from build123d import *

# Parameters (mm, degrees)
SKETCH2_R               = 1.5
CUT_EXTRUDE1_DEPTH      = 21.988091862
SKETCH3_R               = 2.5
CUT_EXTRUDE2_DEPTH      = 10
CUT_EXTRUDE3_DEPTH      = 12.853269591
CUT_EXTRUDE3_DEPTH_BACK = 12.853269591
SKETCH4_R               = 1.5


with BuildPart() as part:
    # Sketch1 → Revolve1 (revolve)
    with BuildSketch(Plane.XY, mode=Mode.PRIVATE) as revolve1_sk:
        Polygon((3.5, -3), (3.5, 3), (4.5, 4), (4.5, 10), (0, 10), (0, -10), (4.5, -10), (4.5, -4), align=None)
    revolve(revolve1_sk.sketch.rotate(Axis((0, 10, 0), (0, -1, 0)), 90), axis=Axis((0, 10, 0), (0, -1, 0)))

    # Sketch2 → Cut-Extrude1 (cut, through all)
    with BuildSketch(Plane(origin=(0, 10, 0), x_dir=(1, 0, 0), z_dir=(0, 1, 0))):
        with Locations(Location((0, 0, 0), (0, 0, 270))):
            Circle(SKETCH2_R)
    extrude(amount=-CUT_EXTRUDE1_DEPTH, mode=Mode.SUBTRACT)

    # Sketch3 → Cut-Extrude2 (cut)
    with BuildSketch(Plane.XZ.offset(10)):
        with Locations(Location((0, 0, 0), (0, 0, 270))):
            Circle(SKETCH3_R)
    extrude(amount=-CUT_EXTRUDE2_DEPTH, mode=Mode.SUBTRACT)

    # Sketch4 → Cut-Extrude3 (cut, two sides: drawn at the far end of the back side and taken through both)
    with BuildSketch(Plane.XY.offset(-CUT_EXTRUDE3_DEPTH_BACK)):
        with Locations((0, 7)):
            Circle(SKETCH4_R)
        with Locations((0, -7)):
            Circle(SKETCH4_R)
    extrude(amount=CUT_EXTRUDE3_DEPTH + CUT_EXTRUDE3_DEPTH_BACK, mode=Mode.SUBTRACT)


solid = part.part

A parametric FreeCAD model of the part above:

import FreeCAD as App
import Part
import Sketcher
Q = App.Units.Quantity

doc = App.newDocument("Part")
body = doc.addObject("PartDesign::Body", "Body")

# Sketch on XY plane
sketch1 = body.newObject("Sketcher::SketchObject", "Sketch")
sketch1.AttachmentSupport = (doc.getObject("XY_Plane"), [""])
sketch1.MapMode = "FlatFace"
sketch1.addGeometry([
    Part.LineSegment(App.Vector(3.5, -3, 0), App.Vector(3.5, 3, 0)),  # 0
    Part.LineSegment(App.Vector(3.5, 3, 0), App.Vector(4.5, 4, 0)),  # 1
    Part.LineSegment(App.Vector(4.5, 4, 0), App.Vector(4.5, 10, 0)),  # 2
    Part.LineSegment(App.Vector(4.5, 10, 0), App.Vector(0, 10, 0)),  # 3
    Part.LineSegment(App.Vector(0, 10, 0), App.Vector(0, -10, 0)),  # 4
    Part.LineSegment(App.Vector(0, -10, 0), App.Vector(4.5, -10, 0)),  # 5
    Part.LineSegment(App.Vector(4.5, -10, 0), App.Vector(4.5, -4, 0)),  # 6
    Part.LineSegment(App.Vector(4.5, -4, 0), App.Vector(3.5, -3, 0)),  # 7
], False)
sketch1.addConstraint([
    Sketcher.Constraint("Coincident", 0, 2, 1, 1),
    Sketcher.Constraint("Coincident", 1, 2, 2, 1),
    Sketcher.Constraint("Coincident", 2, 2, 3, 1),
    Sketcher.Constraint("Coincident", 3, 2, 4, 1),
    Sketcher.Constraint("Coincident", 4, 2, 5, 1),
    Sketcher.Constraint("Coincident", 5, 2, 6, 1),
    Sketcher.Constraint("Coincident", 6, 2, 7, 1),
    Sketcher.Constraint("Coincident", 7, 2, 0, 1),
    Sketcher.Constraint("Vertical", 0),
    Sketcher.Constraint("Vertical", 2),
    Sketcher.Constraint("Horizontal", 3),
    Sketcher.Constraint("Vertical", 4),
    Sketcher.Constraint("Horizontal", 5),
    Sketcher.Constraint("Vertical", 6),
    Sketcher.Constraint("Symmetric", 3, 2, 4, 2, -1, 1),
    Sketcher.Constraint("Symmetric", 1, 2, 6, 2, -1),
    Sketcher.Constraint("Perpendicular", 1, 7),
    Sketcher.Constraint("Equal", 0, 2),
    Sketcher.Constraint("Equal", 1, 7),
    Sketcher.Constraint("DistanceY", 0, 1, 0, 2, Q("6 mm")),
    Sketcher.Constraint("DistanceY", 4, 2, 4, 1, Q("20 mm")),
    Sketcher.Constraint("DistanceX", 3, 2, 3, 1, Q("4.5 mm")),
])
revolution = body.newObject("PartDesign::Revolution", "Revolution")
revolution.Profile = sketch1
revolution.ReferenceAxis = (sketch1, ["V_Axis"])
revolution.Angle = 360

# Sketch on XZ plane
sketch2 = body.newObject("Sketcher::SketchObject", "Sketch001")
sketch2.AttachmentSupport = (doc.getObject("XZ_Plane"), [""])
sketch2.MapMode = "FlatFace"
sketch2.AttachmentOffset = App.Placement(App.Vector(0, 0, -10), App.Rotation())
sketch2.addGeometry(Part.Circle(App.Vector(0, 0, 0), App.Vector(0, 0, 1), 1.5), False)
sketch2.addConstraint([
    Sketcher.Constraint("Coincident", 0, 3, -1, 1),
    Sketcher.Constraint("Diameter", 0, Q("3 mm")),
])
pocket1 = body.newObject("PartDesign::Pocket", "Pocket")
pocket1.Profile = sketch2
pocket1.Type = "ThroughAll"
pocket1.Reversed = True

# Sketch on XZ plane
sketch3 = body.newObject("Sketcher::SketchObject", "Sketch002")
sketch3.AttachmentSupport = (doc.getObject("XZ_Plane"), [""])
sketch3.MapMode = "FlatFace"
sketch3.AttachmentOffset = App.Placement(App.Vector(0, 0, 10), App.Rotation())
sketch3.addGeometry(Part.Circle(App.Vector(0, 0, 0), App.Vector(0, 0, 1), 2.5), False)
sketch3.addConstraint([
    Sketcher.Constraint("Coincident", 0, 3, -1, 1),
    Sketcher.Constraint("Diameter", 0, Q("5 mm")),
])
pocket2 = body.newObject("PartDesign::Pocket", "Pocket001")
pocket2.Profile = sketch3
pocket2.Length = 10

# Sketch on XY plane
sketch4 = body.newObject("Sketcher::SketchObject", "Sketch003")
sketch4.AttachmentSupport = (doc.getObject("XY_Plane"), [""])
sketch4.MapMode = "FlatFace"
sketch4.addGeometry([
    Part.Circle(App.Vector(0, 7, 0), App.Vector(0, 0, 1), 1.5),
    Part.Circle(App.Vector(0, -7, 0), App.Vector(0, 0, 1), 1.5),
], False)
sketch4.addConstraint([
    Sketcher.Constraint("Equal", 0, 1),
    Sketcher.Constraint("Symmetric", 0, 3, 1, 3, -1, 1),
    Sketcher.Constraint("PointOnObject", 0, 3, -2),
    Sketcher.Constraint("Diameter", 0, Q("3 mm")),
    Sketcher.Constraint("DistanceY", -1, 1, 0, 3, Q("7 mm")),
])
pocket3 = body.newObject("PartDesign::Pocket", "Pocket002")
pocket3.Profile = sketch4
pocket3.Type = "ThroughAll"
pocket3.Midplane = True

doc.recompute()
